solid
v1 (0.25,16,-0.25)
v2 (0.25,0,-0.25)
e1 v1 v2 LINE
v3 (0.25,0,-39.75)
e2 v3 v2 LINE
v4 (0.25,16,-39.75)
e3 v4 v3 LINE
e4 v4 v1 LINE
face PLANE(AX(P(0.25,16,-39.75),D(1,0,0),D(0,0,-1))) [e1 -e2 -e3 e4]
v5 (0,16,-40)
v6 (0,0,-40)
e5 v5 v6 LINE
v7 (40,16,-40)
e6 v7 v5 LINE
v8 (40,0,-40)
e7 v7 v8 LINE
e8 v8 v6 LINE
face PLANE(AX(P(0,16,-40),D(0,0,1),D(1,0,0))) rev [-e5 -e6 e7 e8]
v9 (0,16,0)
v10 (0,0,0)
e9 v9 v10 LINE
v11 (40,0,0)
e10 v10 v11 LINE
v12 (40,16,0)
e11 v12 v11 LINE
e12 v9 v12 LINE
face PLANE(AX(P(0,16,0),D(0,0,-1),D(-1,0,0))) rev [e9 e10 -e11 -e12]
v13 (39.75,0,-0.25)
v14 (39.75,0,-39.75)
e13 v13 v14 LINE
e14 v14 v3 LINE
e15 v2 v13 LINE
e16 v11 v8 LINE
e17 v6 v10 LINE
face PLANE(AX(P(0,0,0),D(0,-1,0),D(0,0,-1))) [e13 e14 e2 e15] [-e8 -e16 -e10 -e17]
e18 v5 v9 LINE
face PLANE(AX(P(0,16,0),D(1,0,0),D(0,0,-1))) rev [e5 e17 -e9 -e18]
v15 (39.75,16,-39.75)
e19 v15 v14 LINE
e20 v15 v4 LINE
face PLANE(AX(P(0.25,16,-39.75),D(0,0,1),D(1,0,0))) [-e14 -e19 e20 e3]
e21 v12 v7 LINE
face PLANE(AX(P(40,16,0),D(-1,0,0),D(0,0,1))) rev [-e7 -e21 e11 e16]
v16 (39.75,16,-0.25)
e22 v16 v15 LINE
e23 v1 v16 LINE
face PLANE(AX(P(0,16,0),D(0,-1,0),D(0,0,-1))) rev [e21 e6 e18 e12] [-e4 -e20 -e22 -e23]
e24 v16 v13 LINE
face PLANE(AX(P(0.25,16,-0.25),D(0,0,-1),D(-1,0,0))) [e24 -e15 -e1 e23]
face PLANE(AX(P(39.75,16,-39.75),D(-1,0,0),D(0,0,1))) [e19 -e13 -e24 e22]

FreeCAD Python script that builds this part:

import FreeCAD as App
import Part
import Sketcher
Q = App.Units.Quantity


def add_polygon(sketch, points):
    """Adds a closed chain of lines whose ends are joined by coincident constraints."""
    first, n = sketch.GeometryCount, len(points)
    for a, b in zip(points, points[1:] + points[:1]):
        sketch.addGeometry(Part.LineSegment(App.Vector(*a, 0), App.Vector(*b, 0)), False)
    for i in range(n):
        sketch.addConstraint(Sketcher.Constraint("Coincident", first + i, 2, first + (i + 1) % n, 1))

doc = App.newDocument("Part")
body = doc.addObject("PartDesign::Body", "Body")

sketch1 = body.newObject("Sketcher::SketchObject", "Sketch")
sketch1.AttachmentSupport = (doc.getObject("XZ_Plane"), [""])
sketch1.MapMode = "FlatFace"
add_polygon(sketch1, [(0, -40), (0, 0), (40, 0), (40, -40)])
add_polygon(sketch1, [(39.75, -0.25), (0.25, -0.25), (0.25, -39.75), (39.75, -39.75)])
sketch1.addConstraint(Sketcher.Constraint("Vertical", 0))
sketch1.addConstraint(Sketcher.Constraint("Horizontal", 1))
sketch1.addConstraint(Sketcher.Constraint("Vertical", 2))
sketch1.addConstraint(Sketcher.Constraint("Horizontal", 3))
sketch1.addConstraint(Sketcher.Constraint("Horizontal", 4))
sketch1.addConstraint(Sketcher.Constraint("Vertical", 5))
sketch1.addConstraint(Sketcher.Constraint("Horizontal", 6))
sketch1.addConstraint(Sketcher.Constraint("Vertical", 7))
sketch1.addConstraint(Sketcher.Constraint("Coincident", 0, 2, -1, 1))
sketch1.addConstraint(Sketcher.Constraint("Equal", 3, 0))
sketch1.addConstraint(Sketcher.Constraint("Equal", 6, 5))
sketch1.addConstraint(Sketcher.Constraint("DistanceX", 1, 1, 1, 2, Q("40 mm")))
sketch1.addConstraint(Sketcher.Constraint("DistanceX", 4, 2, 4, 1, Q("39.5 mm")))
sketch1.addConstraint(Sketcher.Constraint("DistanceX", -1, 1, 4, 2, Q("0.25 mm")))
sketch1.addConstraint(Sketcher.Constraint("DistanceY", 4, 2, -1, 1, Q("0.25 mm")))
pad1 = body.newObject("PartDesign::Pad", "Pad")
pad1.Profile = sketch1
pad1.Length = 16
pad1.Reversed = True

doc.recompute()
